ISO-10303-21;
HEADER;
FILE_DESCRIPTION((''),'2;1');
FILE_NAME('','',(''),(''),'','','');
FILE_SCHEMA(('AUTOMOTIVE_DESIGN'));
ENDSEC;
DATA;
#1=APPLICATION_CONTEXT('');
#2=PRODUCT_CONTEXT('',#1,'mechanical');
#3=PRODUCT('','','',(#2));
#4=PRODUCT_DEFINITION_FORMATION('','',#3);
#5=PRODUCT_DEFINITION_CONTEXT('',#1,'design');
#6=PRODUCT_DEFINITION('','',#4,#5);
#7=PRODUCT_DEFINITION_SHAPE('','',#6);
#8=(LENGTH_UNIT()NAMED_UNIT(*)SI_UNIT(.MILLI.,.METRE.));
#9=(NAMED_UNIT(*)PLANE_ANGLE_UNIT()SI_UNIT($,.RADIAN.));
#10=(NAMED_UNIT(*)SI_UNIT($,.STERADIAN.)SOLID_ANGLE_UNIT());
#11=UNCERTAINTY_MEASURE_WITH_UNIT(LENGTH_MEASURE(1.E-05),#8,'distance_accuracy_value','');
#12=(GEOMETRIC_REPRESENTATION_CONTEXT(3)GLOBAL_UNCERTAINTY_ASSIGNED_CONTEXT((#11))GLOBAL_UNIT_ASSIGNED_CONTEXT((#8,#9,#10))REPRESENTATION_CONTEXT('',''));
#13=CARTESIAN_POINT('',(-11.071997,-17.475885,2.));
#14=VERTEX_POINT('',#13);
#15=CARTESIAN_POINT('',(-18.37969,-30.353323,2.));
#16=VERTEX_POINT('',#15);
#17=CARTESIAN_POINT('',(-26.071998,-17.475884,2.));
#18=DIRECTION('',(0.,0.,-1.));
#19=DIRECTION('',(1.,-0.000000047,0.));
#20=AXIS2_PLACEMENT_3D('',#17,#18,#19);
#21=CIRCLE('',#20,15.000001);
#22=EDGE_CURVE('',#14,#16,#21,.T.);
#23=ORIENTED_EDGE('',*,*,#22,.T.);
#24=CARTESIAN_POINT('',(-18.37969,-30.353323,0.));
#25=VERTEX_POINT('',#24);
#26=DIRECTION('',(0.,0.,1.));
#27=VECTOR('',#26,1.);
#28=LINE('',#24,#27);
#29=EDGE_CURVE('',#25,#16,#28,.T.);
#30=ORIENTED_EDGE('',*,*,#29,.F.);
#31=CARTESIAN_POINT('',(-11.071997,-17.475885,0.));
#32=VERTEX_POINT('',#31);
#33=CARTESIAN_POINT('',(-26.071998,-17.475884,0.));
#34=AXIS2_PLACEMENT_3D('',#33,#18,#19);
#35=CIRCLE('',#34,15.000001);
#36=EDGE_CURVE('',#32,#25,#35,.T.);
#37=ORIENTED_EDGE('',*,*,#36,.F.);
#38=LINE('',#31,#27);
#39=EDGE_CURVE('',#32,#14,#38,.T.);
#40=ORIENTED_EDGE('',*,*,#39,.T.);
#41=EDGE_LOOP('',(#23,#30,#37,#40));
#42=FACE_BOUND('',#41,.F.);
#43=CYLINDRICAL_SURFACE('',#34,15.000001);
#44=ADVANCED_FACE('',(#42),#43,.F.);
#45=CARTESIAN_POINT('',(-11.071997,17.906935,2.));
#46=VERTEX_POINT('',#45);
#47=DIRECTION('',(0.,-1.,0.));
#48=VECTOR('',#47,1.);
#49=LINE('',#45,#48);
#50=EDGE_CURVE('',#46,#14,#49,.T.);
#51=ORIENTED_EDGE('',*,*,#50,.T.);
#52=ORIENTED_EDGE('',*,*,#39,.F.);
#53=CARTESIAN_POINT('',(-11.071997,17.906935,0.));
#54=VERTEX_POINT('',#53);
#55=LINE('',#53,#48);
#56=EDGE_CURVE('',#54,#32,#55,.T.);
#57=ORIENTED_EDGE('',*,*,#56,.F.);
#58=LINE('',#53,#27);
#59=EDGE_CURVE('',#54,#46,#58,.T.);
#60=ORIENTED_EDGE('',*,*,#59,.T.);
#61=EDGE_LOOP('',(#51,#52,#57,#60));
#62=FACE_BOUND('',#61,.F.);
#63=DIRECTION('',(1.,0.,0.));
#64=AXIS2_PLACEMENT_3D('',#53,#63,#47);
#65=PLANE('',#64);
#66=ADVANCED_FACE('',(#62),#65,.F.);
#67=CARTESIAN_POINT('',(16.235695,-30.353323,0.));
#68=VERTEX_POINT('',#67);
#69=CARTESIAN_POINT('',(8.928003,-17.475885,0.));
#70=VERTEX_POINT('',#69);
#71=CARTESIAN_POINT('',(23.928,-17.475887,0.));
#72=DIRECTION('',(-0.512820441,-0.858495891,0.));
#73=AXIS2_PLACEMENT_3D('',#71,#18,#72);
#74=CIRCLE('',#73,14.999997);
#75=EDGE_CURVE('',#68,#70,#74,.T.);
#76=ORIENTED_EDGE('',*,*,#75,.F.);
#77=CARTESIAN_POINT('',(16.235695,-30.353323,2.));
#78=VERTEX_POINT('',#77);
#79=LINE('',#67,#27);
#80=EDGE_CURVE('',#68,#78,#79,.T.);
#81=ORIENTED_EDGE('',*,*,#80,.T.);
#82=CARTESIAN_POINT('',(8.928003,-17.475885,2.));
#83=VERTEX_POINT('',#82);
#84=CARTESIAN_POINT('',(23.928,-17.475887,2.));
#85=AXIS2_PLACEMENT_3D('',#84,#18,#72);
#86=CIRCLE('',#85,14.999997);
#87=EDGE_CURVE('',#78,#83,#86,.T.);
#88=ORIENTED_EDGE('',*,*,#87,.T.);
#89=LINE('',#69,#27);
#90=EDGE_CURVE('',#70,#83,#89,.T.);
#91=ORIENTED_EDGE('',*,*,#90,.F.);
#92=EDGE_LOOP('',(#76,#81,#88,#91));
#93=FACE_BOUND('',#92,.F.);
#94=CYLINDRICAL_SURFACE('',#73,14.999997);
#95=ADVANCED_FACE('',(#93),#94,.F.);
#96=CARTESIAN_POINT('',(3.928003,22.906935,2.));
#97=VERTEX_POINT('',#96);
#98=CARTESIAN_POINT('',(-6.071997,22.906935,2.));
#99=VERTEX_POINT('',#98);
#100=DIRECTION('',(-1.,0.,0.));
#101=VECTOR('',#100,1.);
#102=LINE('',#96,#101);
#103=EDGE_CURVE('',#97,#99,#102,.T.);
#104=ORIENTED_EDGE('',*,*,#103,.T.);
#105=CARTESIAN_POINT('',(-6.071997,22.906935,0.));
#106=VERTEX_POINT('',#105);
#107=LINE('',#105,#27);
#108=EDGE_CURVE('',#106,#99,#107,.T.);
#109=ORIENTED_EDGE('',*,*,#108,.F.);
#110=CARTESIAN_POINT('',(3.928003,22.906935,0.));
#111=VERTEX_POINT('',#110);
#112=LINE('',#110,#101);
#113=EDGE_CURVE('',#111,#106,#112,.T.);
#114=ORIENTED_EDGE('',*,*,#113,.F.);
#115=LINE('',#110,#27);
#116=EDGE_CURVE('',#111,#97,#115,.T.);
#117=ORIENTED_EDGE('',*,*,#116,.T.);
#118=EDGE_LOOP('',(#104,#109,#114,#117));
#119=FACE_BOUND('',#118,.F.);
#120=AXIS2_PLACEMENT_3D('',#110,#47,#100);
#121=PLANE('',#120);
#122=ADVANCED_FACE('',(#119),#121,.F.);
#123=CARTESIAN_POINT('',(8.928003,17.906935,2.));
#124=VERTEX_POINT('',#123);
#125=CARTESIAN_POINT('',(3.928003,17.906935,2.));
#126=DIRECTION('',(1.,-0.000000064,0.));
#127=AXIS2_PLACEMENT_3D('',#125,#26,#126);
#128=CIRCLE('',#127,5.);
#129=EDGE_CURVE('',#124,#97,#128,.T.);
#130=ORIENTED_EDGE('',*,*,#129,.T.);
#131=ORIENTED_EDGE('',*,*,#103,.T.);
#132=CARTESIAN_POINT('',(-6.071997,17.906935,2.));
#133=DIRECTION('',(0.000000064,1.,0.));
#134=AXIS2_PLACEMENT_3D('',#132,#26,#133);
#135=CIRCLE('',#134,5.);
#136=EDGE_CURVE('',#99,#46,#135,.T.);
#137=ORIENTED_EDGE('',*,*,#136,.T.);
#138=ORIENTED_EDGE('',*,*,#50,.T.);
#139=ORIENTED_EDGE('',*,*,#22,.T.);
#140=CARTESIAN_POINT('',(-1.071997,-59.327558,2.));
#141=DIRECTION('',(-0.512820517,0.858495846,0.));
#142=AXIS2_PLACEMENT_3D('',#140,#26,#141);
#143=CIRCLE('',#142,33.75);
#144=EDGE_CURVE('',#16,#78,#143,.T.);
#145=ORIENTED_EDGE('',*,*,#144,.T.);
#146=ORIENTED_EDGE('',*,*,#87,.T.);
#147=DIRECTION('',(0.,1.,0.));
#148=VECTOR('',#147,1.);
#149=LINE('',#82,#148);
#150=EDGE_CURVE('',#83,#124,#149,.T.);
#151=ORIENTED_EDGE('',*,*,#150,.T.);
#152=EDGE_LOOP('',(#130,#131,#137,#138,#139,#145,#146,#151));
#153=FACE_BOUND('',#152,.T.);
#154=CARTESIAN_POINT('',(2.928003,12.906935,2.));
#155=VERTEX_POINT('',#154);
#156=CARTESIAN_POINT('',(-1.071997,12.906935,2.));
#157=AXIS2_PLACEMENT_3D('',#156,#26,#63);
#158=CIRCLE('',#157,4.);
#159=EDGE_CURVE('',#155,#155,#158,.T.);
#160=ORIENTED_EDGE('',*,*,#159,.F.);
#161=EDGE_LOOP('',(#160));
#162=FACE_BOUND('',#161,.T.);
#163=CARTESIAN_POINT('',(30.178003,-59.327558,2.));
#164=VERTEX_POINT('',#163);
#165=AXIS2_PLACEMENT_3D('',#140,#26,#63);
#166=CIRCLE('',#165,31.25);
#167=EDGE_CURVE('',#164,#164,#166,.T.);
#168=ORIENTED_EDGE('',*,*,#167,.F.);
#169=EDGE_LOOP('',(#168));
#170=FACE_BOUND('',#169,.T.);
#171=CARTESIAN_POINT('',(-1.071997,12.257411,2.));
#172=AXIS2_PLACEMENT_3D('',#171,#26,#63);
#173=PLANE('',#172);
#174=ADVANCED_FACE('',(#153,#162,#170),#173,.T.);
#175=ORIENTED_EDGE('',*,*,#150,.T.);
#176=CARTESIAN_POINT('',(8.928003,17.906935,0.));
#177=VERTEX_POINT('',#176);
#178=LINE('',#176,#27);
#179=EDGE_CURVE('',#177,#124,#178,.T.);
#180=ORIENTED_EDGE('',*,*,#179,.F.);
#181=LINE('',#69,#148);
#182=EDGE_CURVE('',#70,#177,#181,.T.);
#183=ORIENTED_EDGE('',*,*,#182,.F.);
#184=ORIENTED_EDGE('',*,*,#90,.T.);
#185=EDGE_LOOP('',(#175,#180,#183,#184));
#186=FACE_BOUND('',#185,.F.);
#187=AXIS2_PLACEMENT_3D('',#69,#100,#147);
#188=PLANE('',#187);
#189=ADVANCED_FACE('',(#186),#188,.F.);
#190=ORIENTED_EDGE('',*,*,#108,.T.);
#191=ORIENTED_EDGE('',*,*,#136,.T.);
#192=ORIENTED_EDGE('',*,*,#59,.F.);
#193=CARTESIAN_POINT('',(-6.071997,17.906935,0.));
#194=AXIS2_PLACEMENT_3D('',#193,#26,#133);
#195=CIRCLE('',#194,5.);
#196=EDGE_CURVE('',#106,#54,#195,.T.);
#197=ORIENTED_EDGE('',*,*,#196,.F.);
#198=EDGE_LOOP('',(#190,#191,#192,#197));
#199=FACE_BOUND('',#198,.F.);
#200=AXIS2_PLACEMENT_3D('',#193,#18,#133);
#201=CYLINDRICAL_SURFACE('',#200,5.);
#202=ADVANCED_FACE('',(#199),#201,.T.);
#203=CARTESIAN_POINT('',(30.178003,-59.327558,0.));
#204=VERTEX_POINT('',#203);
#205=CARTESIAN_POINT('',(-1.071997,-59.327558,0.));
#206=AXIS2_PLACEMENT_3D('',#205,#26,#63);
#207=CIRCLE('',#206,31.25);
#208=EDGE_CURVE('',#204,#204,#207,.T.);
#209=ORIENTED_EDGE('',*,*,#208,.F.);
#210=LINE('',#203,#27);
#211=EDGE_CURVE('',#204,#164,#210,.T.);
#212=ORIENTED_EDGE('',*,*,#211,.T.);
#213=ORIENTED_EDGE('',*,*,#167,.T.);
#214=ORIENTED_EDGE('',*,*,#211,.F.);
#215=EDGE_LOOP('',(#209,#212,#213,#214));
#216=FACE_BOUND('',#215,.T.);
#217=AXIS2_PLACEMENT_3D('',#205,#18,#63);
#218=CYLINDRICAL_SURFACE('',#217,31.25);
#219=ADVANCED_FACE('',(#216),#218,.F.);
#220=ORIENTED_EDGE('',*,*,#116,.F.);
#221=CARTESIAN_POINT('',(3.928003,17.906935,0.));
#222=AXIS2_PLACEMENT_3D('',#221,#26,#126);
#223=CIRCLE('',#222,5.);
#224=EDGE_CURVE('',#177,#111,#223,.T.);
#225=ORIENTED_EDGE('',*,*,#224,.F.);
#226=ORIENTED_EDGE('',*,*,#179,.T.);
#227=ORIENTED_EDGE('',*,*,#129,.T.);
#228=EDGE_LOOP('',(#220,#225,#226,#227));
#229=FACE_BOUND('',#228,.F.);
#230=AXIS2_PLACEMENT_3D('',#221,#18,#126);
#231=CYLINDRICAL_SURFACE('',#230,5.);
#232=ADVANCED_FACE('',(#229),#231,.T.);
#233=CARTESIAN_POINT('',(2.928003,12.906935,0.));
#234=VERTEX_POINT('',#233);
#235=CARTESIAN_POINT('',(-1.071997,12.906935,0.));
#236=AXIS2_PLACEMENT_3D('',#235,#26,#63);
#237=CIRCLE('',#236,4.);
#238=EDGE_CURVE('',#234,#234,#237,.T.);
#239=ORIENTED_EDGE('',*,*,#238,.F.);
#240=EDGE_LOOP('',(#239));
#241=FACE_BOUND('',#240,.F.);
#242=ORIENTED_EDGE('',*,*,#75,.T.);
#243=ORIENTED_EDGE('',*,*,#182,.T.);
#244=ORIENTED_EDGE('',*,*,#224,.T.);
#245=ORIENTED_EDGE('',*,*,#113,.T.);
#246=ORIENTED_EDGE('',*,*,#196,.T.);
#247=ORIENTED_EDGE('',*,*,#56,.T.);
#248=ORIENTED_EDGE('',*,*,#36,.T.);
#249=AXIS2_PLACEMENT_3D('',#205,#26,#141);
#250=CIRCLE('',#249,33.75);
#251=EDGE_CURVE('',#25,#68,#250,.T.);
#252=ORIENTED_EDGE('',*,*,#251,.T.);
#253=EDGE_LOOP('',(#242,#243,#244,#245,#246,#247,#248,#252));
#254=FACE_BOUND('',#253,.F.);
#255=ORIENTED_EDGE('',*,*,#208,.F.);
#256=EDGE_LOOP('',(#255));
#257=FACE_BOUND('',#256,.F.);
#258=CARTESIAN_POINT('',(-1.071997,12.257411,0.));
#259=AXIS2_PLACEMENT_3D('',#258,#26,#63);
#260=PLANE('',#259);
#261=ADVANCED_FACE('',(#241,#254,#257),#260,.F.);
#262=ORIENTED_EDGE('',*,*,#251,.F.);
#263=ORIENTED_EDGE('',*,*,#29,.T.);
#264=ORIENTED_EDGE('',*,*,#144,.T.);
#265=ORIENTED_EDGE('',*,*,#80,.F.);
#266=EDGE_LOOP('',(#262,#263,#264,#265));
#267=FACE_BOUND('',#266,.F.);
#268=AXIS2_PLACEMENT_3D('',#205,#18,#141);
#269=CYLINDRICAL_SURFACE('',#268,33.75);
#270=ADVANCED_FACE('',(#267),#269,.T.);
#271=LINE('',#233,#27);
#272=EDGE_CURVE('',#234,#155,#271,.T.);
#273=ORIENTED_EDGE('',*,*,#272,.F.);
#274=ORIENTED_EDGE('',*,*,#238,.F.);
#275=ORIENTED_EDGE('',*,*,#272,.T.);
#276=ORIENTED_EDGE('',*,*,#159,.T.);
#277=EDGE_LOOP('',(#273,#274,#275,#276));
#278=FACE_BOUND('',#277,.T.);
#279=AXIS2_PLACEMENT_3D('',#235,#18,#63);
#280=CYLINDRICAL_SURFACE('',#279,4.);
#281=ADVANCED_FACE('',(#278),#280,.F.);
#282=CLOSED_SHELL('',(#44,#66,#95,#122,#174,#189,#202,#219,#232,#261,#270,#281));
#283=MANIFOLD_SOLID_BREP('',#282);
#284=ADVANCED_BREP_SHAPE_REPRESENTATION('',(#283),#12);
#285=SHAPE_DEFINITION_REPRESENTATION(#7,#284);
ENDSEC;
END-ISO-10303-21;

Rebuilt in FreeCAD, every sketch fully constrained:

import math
import FreeCAD as App
import Part
import Sketcher
from FreeCAD import Vector

doc = App.newDocument("Part")
params = doc.addObject("Spreadsheet::Sheet", "Params")
for row, (alias, value) in enumerate([
    ("sketch1_diameter", "8 mm"),
    ("sketch1_radius", "15.000001 mm"),
    ("sketch1_radius2", "5 mm"),
    ("sketch1_diameter2", "62.5 mm"),
    ("sketch1_width", "10 mm"),
    ("pad1_length", "2 mm"),
], start=1):
    params.set(f"A{row}", alias)
    params.set(f"B{row}", "=" + value)
    params.setAlias(f"B{row}", alias)

body = doc.addObject("PartDesign::Body", "Body")

sketch1 = doc.addObject("Sketcher::SketchObject", "Sketch")
body.addObject(sketch1)
sketch1.AttachmentSupport = (doc.XY_Plane, [""])
sketch1.MapMode = "FlatFace"
sketch1.addGeometry(Part.LineSegment(Vector(-11.1, 17.9, 0), Vector(-11.1, -17.5, 0)), False)
sketch1.addGeometry(Part.ArcOfCircle(Part.Circle(Vector(-26.1, -17.5, 0), Vector(0, 0, 1), 15), math.radians(-59), math.radians(0)), False)
sketch1.addGeometry(Part.ArcOfCircle(Part.Circle(Vector(-1.1, -59.3, 0), Vector(0, 0, 1), 33.8), math.radians(121), math.radians(419)), False)
sketch1.addGeometry(Part.ArcOfCircle(Part.Circle(Vector(23.9, -17.5, 0), Vector(0, 0, 1), 15), math.radians(180), math.radians(239)), False)
sketch1.addGeometry(Part.LineSegment(Vector(8.9, -17.5, 0), Vector(8.9, 17.9, 0)), False)
sketch1.addGeometry(Part.ArcOfCircle(Part.Circle(Vector(3.9, 17.9, 0), Vector(0, 0, 1), 5), math.radians(0), math.radians(90)), False)
sketch1.addGeometry(Part.LineSegment(Vector(3.9, 22.9, 0), Vector(-6.1, 22.9, 0)), False)
sketch1.addGeometry(Part.ArcOfCircle(Part.Circle(Vector(-6.1, 17.9, 0), Vector(0, 0, 1), 5), math.radians(90), math.radians(180)), False)
sketch1.addGeometry(Part.Circle(Vector(-1.1, -59.3, 0), Vector(0, 0, 1), 31.2), False)
sketch1.addGeometry(Part.Circle(Vector(-1.1, 12.9, 0), Vector(0, 0, 1), 4), False)
sketch1.addConstraint(Sketcher.Constraint("Tangent", 0, 2, 1, 2))
sketch1.addConstraint(Sketcher.Constraint("Tangent", 1, 1, 2, 1))
sketch1.addConstraint(Sketcher.Constraint("Tangent", 2, 2, 3, 2))
sketch1.addConstraint(Sketcher.Constraint("Tangent", 3, 1, 4, 1))
sketch1.addConstraint(Sketcher.Constraint("Tangent", 4, 2, 5, 1))
sketch1.addConstraint(Sketcher.Constraint("Tangent", 5, 2, 6, 1))
sketch1.addConstraint(Sketcher.Constraint("Tangent", 6, 2, 7, 1))
sketch1.addConstraint(Sketcher.Constraint("Tangent", 7, 2, 0, 1))
sketch1.addConstraint(Sketcher.Constraint("Vertical", 0))
sketch1.addConstraint(Sketcher.Constraint("Vertical", 4))
sketch1.addConstraint(Sketcher.Constraint("Horizontal", 6))
sketch1.addConstraint(Sketcher.Constraint("Coincident", 8, 3, 2, 3))
sketch1.addConstraint(Sketcher.Constraint("Equal", 5, 7))
sketch1.addConstraint(Sketcher.Constraint("Horizontal", 1, 1, 2, 2))
sketch1.addConstraint(Sketcher.Constraint("Horizontal", 0, 2, 3, 1))
sketch1.addConstraint(Sketcher.Constraint("Vertical", 8, 3, 9, 3))
sketch1.addConstraint(Sketcher.Constraint("Diameter", 9, 8.0))
sketch1.addConstraint(Sketcher.Constraint("Radius", 1, 15.000001))
sketch1.addConstraint(Sketcher.Constraint("Radius", 5, 5.0))
sketch1.addConstraint(Sketcher.Constraint("Diameter", 8, 62.5))
sketch1.addConstraint(Sketcher.Constraint("DistanceX", 6, 2, 6, 1, 10.0))
sketch1.addConstraint(Sketcher.Constraint("Radius", 2, 33.75))
sketch1.addConstraint(Sketcher.Constraint("DistanceY", 9, 3, 5, 3, 5.0))
sketch1.addConstraint(Sketcher.Constraint("DistanceX", -1, 1, 3, 3, 23.928))
sketch1.addConstraint(Sketcher.Constraint("DistanceY", 0, 2, 0, 1, 35.38282))
sketch1.addConstraint(Sketcher.Constraint("DistanceY", 8, 3, -1, 1, 59.327558))
sketch1.setExpression("Constraints[16]", "Params.sketch1_diameter")
sketch1.setExpression("Constraints[17]", "Params.sketch1_radius")
sketch1.setExpression("Constraints[18]", "Params.sketch1_radius2")
sketch1.setExpression("Constraints[19]", "Params.sketch1_diameter2")
sketch1.setExpression("Constraints[20]", "Params.sketch1_width")
pad1 = doc.addObject("PartDesign::Pad", "Pad")
body.addObject(pad1)
pad1.Profile = sketch1
pad1.setExpression("Length", "Params.pad1_length")

doc.recompute()
